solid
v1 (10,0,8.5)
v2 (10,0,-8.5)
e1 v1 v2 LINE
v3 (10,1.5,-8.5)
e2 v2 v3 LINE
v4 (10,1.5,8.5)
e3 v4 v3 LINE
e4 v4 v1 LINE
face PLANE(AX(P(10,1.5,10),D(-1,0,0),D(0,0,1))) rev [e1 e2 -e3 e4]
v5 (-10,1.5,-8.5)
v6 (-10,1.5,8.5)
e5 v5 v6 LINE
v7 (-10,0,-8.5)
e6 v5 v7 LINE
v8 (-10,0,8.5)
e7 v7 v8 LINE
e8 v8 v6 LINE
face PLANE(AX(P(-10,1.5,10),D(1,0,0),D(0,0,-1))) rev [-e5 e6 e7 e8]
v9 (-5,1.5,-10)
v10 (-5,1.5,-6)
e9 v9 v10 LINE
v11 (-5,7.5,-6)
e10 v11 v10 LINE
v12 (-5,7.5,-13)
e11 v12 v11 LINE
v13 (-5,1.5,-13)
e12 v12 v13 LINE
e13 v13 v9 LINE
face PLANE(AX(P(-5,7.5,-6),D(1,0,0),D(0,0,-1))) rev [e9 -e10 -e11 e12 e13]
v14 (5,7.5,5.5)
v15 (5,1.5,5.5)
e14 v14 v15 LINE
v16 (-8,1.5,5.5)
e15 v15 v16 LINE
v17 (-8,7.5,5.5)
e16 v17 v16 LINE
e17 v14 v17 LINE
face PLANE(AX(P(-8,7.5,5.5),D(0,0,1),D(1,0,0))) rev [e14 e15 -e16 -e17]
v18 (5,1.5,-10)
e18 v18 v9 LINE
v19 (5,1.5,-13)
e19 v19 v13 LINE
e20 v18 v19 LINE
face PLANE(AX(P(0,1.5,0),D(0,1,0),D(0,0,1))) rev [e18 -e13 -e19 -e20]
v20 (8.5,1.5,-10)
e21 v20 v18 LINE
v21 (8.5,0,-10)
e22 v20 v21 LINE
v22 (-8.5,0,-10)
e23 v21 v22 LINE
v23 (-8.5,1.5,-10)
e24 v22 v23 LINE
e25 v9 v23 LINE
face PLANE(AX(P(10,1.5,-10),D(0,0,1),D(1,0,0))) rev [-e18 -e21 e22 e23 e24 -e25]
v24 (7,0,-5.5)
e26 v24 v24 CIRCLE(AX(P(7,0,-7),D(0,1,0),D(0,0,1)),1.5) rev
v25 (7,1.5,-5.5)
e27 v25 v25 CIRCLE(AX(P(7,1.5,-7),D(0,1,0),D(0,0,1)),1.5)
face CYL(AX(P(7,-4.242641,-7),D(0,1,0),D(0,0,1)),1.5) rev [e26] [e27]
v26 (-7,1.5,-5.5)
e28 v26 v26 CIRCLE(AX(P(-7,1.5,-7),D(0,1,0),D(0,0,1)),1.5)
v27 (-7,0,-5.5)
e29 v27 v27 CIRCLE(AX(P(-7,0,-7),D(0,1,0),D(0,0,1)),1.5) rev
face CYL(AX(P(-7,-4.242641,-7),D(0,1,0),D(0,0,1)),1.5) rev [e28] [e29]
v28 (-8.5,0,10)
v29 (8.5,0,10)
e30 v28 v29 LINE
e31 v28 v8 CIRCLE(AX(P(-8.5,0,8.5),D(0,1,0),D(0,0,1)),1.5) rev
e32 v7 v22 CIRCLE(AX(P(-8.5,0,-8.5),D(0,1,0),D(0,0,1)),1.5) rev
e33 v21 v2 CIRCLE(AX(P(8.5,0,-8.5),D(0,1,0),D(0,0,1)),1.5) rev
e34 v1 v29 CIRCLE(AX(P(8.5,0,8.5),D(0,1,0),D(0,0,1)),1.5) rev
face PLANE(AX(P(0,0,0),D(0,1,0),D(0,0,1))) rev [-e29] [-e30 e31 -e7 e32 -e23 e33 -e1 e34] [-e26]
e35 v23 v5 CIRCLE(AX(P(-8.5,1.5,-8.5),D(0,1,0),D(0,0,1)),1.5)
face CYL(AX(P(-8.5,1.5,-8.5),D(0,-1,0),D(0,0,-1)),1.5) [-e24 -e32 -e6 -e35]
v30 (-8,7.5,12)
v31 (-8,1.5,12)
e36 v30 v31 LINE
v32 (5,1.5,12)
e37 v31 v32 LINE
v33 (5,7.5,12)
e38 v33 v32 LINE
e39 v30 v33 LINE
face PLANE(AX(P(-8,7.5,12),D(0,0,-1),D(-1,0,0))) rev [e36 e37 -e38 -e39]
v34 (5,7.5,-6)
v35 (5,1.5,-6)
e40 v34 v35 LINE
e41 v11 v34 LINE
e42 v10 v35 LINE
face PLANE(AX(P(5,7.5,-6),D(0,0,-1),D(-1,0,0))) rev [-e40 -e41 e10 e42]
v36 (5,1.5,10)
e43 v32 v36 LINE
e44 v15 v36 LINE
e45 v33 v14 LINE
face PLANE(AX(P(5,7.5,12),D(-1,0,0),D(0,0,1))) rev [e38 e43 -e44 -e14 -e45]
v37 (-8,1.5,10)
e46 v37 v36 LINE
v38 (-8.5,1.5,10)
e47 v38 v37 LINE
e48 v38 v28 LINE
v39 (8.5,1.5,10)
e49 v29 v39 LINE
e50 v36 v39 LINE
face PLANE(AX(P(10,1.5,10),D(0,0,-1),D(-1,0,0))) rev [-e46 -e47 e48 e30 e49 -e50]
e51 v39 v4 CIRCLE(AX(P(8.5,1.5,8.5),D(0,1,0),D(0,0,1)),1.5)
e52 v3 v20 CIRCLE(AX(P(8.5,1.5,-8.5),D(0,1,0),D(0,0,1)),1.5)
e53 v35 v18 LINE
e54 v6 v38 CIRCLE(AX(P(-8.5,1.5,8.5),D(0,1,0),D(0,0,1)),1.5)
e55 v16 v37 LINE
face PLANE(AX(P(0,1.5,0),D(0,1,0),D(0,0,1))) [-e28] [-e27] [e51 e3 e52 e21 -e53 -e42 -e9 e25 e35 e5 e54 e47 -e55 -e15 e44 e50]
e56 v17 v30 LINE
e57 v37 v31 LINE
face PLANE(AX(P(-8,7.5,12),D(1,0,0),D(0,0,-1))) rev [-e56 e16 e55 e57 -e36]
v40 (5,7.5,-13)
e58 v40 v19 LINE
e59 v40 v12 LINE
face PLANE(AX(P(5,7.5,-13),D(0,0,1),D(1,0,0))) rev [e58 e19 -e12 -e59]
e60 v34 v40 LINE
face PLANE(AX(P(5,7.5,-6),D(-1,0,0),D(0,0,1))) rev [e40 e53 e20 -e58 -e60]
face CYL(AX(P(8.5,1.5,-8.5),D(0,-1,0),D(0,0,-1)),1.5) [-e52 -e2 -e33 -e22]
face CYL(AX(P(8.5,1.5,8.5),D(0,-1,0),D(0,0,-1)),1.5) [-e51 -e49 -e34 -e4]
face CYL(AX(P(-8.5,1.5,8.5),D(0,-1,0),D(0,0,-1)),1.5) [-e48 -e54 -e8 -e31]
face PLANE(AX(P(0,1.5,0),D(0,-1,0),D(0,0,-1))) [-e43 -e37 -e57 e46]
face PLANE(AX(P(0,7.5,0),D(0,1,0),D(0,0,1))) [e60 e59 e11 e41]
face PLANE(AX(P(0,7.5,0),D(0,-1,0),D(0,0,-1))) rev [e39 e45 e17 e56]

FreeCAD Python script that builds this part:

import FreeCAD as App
import Part
import Sketcher

V = App.Vector


def edges_at(feature, points):
    """Names of the edges that pass closest to the given points."""
    edges = feature.Shape.Edges
    near = lambda p: min(range(len(edges)), key=lambda i: edges[i].distToShape(Part.Vertex(*p))[0])
    return sorted({f"Edge{near(p) + 1}" for p in points})

doc = App.newDocument("Part")
params = doc.addObject("Spreadsheet::Sheet", "Params")
for row, (alias, value) in enumerate([
    ("sketch1_width", "20 mm"),
    ("pad1_length", "1.5 mm"),
    ("fillet_radius", "1.5 mm"),
    ("sketch2_diameter", "3 mm"),
    ("pocket1_length", "1.5 mm"),
    ("sketch3_width", "10 mm"),
    ("sketch3_height", "7 mm"),
    ("pad2_length", "6 mm"),
    ("sketch4_width", "13 mm"),
    ("sketch4_height", "6.5 mm"),
    ("pad3_length", "6 mm"),
], start=1):
    params.set(f"A{row}", alias)
    params.set(f"B{row}", "=" + value)
    params.setAlias(f"B{row}", alias)

body = doc.addObject("PartDesign::Body", "Body")

# Sketch on XZ plane
sketch1 = doc.addObject("Sketcher::SketchObject", "Sketch")
body.addObject(sketch1)
sketch1.AttachmentSupport = (doc.XZ_Plane, [""])
sketch1.MapMode = "FlatFace"
sketch1.addGeometry([
    Part.LineSegment(V(-10, -10, 0), V(-10, 10, 0)),
    Part.LineSegment(V(-10, 10, 0), V(10, 10, 0)),
    Part.LineSegment(V(10, 10, 0), V(10, -10, 0)),
    Part.LineSegment(V(10, -10, 0), V(-10, -10, 0)),
], False)
sketch1.addConstraint([
    Sketcher.Constraint("Coincident", 0, 2, 1, 1),
    Sketcher.Constraint("Coincident", 1, 2, 2, 1),
    Sketcher.Constraint("Coincident", 2, 2, 3, 1),
    Sketcher.Constraint("Coincident", 3, 2, 0, 1),
    Sketcher.Constraint("Vertical", 0),
    Sketcher.Constraint("Horizontal", 1),
    Sketcher.Constraint("Vertical", 2),
    Sketcher.Constraint("Horizontal", 3),
    Sketcher.Constraint("Symmetric", 0, 2, 2, 2, -1, 1),
    Sketcher.Constraint("Equal", 3, 0),
    Sketcher.Constraint("DistanceX", 1, 1, 1, 2, 20.0),
])
sketch1.setExpression("Constraints[10]", "Params.sketch1_width")
pad1 = doc.addObject("PartDesign::Pad", "Pad")
body.addObject(pad1)
pad1.Profile = sketch1
pad1.setExpression("Length", "Params.pad1_length")
pad1.Reversed = True
doc.recompute()

fillet = doc.addObject("PartDesign::Fillet", "Fillet")
body.addObject(fillet)
fillet.Base = (pad1, edges_at(pad1, [
    (-10, 0.75, -10),
    (10, 0.75, -10),
    (10, 0.75, 10),
    (-10, 0.75, 10),
]))
fillet.setExpression("Radius", "Params.fillet_radius")

# Sketch on XZ plane
sketch2 = doc.addObject("Sketcher::SketchObject", "Sketch001")
body.addObject(sketch2)
sketch2.AttachmentSupport = (doc.XZ_Plane, [""])
sketch2.MapMode = "FlatFace"
sketch2.AttachmentOffset = App.Placement(V(0, 0, -1.5), App.Rotation())
sketch2.addGeometry([
    Part.Circle(V(7, -7, 0), V(0, 0, 1), 1.5),
    Part.Circle(V(-7, -7, 0), V(0, 0, 1), 1.5),
], False)
sketch2.addConstraint([
    Sketcher.Constraint("Equal", 0, 1),
    Sketcher.Constraint("Symmetric", 0, 3, 1, 3, -2),
    Sketcher.Constraint("Diameter", 0, 3.0),
    Sketcher.Constraint("DistanceX", -1, 1, 0, 3, 7.0),
    Sketcher.Constraint("DistanceY", 0, 3, -1, 1, 7.0),
])
sketch2.setExpression("Constraints[2]", "Params.sketch2_diameter")
pocket1 = doc.addObject("PartDesign::Pocket", "Pocket")
body.addObject(pocket1)
pocket1.Profile = sketch2
pocket1.setExpression("Length", "Params.pocket1_length")
pocket1.Reversed = True

# Sketch on XZ plane
sketch3 = doc.addObject("Sketcher::SketchObject", "Sketch002")
body.addObject(sketch3)
sketch3.AttachmentSupport = (doc.XZ_Plane, [""])
sketch3.MapMode = "FlatFace"
sketch3.AttachmentOffset = App.Placement(V(0, 0, -1.5), App.Rotation())
sketch3.addGeometry([
    Part.LineSegment(V(-5, -13, 0), V(-5, -6, 0)),
    Part.LineSegment(V(-5, -6, 0), V(5, -6, 0)),
    Part.LineSegment(V(5, -6, 0), V(5, -13, 0)),
    Part.LineSegment(V(5, -13, 0), V(-5, -13, 0)),
], False)
sketch3.addConstraint([
    Sketcher.Constraint("Coincident", 0, 2, 1, 1),
    Sketcher.Constraint("Coincident", 1, 2, 2, 1),
    Sketcher.Constraint("Coincident", 2, 2, 3, 1),
    Sketcher.Constraint("Coincident", 3, 2, 0, 1),
    Sketcher.Constraint("Vertical", 0),
    Sketcher.Constraint("Horizontal", 1),
    Sketcher.Constraint("Vertical", 2),
    Sketcher.Constraint("Horizontal", 3),
    Sketcher.Constraint("DistanceX", 1, 1, 1, 2, 10.0),
    Sketcher.Constraint("DistanceY", 0, 1, 0, 2, 7.0),
    Sketcher.Constraint("DistanceX", 0, 2, -1, 1, 5.0),
    Sketcher.Constraint("DistanceY", 0, 2, -1, 1, 6.0),
])
sketch3.setExpression("Constraints[8]", "Params.sketch3_width")
sketch3.setExpression("Constraints[9]", "Params.sketch3_height")
pad2 = doc.addObject("PartDesign::Pad", "Pad001")
body.addObject(pad2)
pad2.Profile = sketch3
pad2.setExpression("Length", "Params.pad2_length")
pad2.Reversed = True

# Sketch on XZ plane
sketch4 = doc.addObject("Sketcher::SketchObject", "Sketch003")
body.addObject(sketch4)
sketch4.AttachmentSupport = (doc.XZ_Plane, [""])
sketch4.MapMode = "FlatFace"
sketch4.AttachmentOffset = App.Placement(V(0, 0, -1.5), App.Rotation())
sketch4.addGeometry([
    Part.LineSegment(V(-8, 6, 0), V(-8, 12, 0)),
    Part.LineSegment(V(-8, 12, 0), V(5, 12, 0)),
    Part.LineSegment(V(5, 12, 0), V(5, 6, 0)),
    Part.LineSegment(V(5, 6, 0), V(-8, 6, 0)),
], False)
sketch4.addConstraint([
    Sketcher.Constraint("Coincident", 0, 2, 1, 1),
    Sketcher.Constraint("Coincident", 1, 2, 2, 1),
    Sketcher.Constraint("Coincident", 2, 2, 3, 1),
    Sketcher.Constraint("Coincident", 3, 2, 0, 1),
    Sketcher.Constraint("Vertical", 0),
    Sketcher.Constraint("Horizontal", 1),
    Sketcher.Constraint("Vertical", 2),
    Sketcher.Constraint("Horizontal", 3),
    Sketcher.Constraint("DistanceX", 1, 1, 1, 2, 13.0),
    Sketcher.Constraint("DistanceY", 0, 1, 0, 2, 6.5),
    Sketcher.Constraint("DistanceX", 0, 2, -1, 1, 8.0),
    Sketcher.Constraint("DistanceY", -1, 1, 0, 2, 12.0),
])
sketch4.setExpression("Constraints[8]", "Params.sketch4_width")
sketch4.setExpression("Constraints[9]", "Params.sketch4_height")
pad3 = doc.addObject("PartDesign::Pad", "Pad002")
body.addObject(pad3)
pad3.Profile = sketch4
pad3.setExpression("Length", "Params.pad3_length")
pad3.Reversed = True

doc.recompute()
